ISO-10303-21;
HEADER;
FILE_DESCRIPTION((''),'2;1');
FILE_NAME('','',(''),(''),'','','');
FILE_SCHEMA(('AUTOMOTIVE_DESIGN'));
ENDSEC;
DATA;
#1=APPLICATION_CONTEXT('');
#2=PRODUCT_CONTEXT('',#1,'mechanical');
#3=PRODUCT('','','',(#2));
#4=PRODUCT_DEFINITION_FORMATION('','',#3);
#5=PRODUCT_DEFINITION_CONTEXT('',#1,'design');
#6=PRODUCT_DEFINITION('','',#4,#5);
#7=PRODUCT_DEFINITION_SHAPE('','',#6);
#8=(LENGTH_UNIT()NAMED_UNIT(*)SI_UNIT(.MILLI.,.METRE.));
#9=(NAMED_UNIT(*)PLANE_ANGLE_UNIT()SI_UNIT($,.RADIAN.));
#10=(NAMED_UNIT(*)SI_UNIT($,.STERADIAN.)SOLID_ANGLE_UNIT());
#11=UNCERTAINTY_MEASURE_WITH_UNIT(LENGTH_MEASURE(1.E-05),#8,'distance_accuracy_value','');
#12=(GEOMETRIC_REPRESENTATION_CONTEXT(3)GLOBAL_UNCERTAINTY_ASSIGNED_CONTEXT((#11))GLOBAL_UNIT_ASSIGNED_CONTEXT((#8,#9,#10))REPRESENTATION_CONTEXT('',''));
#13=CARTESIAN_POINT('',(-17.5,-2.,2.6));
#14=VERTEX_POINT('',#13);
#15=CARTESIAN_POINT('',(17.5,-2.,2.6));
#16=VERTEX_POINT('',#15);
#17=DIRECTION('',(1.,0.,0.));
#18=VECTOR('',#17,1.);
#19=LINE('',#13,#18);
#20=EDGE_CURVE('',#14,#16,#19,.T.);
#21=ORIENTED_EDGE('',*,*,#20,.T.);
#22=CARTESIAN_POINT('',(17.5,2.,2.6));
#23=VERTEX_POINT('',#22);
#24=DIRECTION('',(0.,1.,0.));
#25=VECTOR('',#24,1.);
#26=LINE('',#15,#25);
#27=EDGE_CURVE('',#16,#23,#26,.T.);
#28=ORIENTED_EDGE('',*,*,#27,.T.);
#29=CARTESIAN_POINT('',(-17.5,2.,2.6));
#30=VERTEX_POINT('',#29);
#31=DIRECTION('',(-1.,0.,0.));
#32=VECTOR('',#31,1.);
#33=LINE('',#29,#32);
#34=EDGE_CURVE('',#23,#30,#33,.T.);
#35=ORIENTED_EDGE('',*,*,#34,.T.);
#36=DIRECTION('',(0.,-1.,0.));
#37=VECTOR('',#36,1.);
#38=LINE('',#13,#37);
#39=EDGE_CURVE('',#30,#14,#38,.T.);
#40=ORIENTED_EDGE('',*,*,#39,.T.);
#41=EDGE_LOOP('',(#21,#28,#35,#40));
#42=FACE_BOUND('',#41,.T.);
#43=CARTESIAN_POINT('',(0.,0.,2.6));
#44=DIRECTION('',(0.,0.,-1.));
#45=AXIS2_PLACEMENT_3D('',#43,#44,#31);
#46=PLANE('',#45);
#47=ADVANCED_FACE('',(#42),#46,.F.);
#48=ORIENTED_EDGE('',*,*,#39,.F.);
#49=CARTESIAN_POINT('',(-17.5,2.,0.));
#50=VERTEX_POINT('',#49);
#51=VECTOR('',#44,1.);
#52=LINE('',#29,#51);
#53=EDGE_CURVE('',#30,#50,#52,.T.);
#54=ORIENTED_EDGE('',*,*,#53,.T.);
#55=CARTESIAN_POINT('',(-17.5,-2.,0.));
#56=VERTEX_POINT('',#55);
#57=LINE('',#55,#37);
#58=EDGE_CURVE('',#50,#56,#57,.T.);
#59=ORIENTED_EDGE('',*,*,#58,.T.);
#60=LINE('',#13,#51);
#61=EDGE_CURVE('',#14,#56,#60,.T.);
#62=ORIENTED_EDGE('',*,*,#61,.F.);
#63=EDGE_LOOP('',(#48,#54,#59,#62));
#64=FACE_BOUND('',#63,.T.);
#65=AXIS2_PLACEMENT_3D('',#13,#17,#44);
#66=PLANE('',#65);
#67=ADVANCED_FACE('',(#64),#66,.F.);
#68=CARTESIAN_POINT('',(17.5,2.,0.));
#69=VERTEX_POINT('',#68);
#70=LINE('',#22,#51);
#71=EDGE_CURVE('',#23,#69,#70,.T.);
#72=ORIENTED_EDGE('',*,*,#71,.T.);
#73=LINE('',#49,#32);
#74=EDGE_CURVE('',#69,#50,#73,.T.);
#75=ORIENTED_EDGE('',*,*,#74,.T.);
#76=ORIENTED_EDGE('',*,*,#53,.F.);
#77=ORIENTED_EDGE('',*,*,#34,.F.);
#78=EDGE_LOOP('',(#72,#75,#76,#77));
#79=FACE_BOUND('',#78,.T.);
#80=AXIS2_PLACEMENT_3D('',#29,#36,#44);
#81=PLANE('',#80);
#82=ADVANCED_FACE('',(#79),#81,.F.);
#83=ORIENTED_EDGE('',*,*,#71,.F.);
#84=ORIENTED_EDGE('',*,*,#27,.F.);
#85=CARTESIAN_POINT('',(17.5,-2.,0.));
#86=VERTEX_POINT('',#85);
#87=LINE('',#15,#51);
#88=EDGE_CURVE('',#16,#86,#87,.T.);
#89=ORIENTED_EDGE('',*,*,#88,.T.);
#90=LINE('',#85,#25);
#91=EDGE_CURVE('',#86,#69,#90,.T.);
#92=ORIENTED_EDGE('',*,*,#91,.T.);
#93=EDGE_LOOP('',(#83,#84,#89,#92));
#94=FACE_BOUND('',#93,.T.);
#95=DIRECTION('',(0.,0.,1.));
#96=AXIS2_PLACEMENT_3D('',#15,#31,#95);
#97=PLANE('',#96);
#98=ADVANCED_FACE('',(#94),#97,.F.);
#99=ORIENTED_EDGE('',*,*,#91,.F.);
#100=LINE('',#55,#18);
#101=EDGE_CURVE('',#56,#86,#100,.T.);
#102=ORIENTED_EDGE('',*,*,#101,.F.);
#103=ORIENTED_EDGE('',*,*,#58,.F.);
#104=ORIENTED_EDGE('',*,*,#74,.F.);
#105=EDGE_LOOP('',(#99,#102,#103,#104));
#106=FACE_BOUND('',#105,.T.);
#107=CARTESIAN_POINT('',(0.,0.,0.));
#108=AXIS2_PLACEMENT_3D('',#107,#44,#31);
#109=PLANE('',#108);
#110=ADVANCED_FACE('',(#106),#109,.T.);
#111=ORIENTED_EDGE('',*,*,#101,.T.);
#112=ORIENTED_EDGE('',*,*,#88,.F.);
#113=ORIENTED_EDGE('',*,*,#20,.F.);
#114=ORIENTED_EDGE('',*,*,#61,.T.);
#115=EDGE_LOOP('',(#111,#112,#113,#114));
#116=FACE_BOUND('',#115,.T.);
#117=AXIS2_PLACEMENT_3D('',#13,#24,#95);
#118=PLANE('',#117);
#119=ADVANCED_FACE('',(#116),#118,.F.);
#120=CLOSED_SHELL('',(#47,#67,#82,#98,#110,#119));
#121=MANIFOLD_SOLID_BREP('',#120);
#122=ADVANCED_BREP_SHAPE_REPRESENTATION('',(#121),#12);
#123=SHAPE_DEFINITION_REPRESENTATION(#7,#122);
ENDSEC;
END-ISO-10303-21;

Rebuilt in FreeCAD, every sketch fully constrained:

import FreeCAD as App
import Part
import Sketcher
from FreeCAD import Vector
Q = App.Units.Quantity


def add_polygon(sketch, points):
    """Adds a closed chain of lines whose ends are joined by coincident constraints."""
    first, n = sketch.GeometryCount, len(points)
    for a, b in zip(points, points[1:] + points[:1]):
        sketch.addGeometry(Part.LineSegment(App.Vector(*a, 0), App.Vector(*b, 0)), False)
    for i in range(n):
        sketch.addConstraint(Sketcher.Constraint("Coincident", first + i, 2, first + (i + 1) % n, 1))

doc = App.newDocument("Part")
body = doc.addObject("PartDesign::Body", "Body")

# Sketch on XY plane
sketch1 = body.newObject("Sketcher::SketchObject", "Sketch")
sketch1.AttachmentSupport = (doc.getObject("XY_Plane"), [""])
sketch1.MapMode = "FlatFace"
add_polygon(sketch1, [(-17.5, 2), (-17.5, -2), (17.5, -2), (17.5, 2)])  # lines 0-3
sketch1.addConstraint(Sketcher.Constraint("Vertical", 0))
sketch1.addConstraint(Sketcher.Constraint("Horizontal", 1))
sketch1.addConstraint(Sketcher.Constraint("Vertical", 2))
sketch1.addConstraint(Sketcher.Constraint("Horizontal", 3))
sketch1.addConstraint(Sketcher.Constraint("Symmetric", 0, 2, 2, 2, -1, 1))
sketch1.addConstraint(Sketcher.Constraint("DistanceX", 1, 1, 1, 2, Q("35 mm")))
sketch1.addConstraint(Sketcher.Constraint("DistanceY", 0, 2, 0, 1, Q("4 mm")))
pad1 = body.newObject("PartDesign::Pad", "Pad")
pad1.Profile = sketch1
pad1.Length = 2.6

doc.recompute()
